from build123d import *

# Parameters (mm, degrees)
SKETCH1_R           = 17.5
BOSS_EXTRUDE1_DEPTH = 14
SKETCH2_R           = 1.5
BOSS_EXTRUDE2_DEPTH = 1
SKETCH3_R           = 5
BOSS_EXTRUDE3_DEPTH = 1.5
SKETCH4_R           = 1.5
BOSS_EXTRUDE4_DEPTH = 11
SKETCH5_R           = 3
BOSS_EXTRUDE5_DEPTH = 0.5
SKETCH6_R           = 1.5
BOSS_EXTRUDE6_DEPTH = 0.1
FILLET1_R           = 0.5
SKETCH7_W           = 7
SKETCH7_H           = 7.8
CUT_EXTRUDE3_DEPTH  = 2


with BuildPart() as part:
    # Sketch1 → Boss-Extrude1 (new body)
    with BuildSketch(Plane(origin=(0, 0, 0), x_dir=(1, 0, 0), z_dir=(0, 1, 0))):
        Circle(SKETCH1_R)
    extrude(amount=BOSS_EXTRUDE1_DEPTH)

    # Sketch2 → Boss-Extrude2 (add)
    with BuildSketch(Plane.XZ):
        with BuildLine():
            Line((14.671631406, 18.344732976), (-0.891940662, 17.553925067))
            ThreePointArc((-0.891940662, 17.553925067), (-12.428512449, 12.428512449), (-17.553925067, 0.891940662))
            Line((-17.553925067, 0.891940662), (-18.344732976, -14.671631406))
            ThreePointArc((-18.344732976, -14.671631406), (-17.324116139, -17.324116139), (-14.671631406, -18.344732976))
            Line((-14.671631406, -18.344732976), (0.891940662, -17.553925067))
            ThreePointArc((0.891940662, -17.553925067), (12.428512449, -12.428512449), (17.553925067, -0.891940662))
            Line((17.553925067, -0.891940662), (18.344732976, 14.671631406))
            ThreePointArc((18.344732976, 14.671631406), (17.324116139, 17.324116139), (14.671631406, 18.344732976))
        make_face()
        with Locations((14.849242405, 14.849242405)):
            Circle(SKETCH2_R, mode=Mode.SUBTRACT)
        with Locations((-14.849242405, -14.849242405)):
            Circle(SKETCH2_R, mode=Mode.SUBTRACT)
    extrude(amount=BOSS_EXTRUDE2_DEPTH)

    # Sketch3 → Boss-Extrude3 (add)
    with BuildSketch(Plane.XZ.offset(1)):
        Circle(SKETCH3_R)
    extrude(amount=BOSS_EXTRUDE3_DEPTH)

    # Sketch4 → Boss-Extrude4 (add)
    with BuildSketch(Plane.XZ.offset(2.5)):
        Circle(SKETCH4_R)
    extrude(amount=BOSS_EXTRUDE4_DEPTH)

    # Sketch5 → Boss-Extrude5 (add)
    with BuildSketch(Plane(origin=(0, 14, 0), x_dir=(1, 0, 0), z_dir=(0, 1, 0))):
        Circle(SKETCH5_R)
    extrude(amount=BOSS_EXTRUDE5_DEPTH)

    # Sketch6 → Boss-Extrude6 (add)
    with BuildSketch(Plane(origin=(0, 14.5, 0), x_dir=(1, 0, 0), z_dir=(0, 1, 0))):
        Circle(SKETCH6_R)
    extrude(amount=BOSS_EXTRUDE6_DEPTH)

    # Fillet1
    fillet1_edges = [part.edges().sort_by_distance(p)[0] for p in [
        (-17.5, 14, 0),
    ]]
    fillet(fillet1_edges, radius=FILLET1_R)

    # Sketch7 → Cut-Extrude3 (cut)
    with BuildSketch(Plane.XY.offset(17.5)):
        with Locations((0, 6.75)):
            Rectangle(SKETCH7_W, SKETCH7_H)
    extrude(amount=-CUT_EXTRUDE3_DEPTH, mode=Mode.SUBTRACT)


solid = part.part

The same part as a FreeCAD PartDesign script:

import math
import FreeCAD as App
import Part
import Sketcher
Q = App.Units.Quantity


def edges_at(feature, points):
    """Names of the edges that pass closest to the given points."""
    edges = feature.Shape.Edges
    near = lambda p: min(range(len(edges)), key=lambda i: edges[i].distToShape(Part.Vertex(*p))[0])
    return sorted({f"Edge{near(p) + 1}" for p in points})


def add_polygon(sketch, points):
    """Adds a closed chain of lines whose ends are joined by coincident constraints."""
    first, n = sketch.GeometryCount, len(points)
    for a, b in zip(points, points[1:] + points[:1]):
        sketch.addGeometry(Part.LineSegment(App.Vector(*a, 0), App.Vector(*b, 0)), False)
    for i in range(n):
        sketch.addConstraint(Sketcher.Constraint("Coincident", first + i, 2, first + (i + 1) % n, 1))

doc = App.newDocument("Part")
body = doc.addObject("PartDesign::Body", "Body")

sketch1 = body.newObject("Sketcher::SketchObject", "Sketch")
sketch1.AttachmentSupport = (doc.getObject("XZ_Plane"), [""])
sketch1.MapMode = "FlatFace"
sketch1.addGeometry(Part.Circle(App.Vector(0, 0, 0), App.Vector(0, 0, 1), 18), False)
sketch1.addConstraint(Sketcher.Constraint("Coincident", 0, 3, -1, 1))
sketch1.addConstraint(Sketcher.Constraint("Diameter", 0, Q("35 mm")))
pad1 = body.newObject("PartDesign::Pad", "Pad")
pad1.Profile = sketch1
pad1.Length = 14
pad1.Reversed = True

sketch2 = body.newObject("Sketcher::SketchObject", "Sketch001")
sketch2.AttachmentSupport = (doc.getObject("XZ_Plane"), [""])
sketch2.MapMode = "FlatFace"
sketch2.addGeometry(Part.LineSegment(App.Vector(14.7, 18.3, 0), App.Vector(-0.9, 17.6, 0)), False)
sketch2.addGeometry(Part.ArcOfCircle(Part.Circle(App.Vector(0, 0, 0), App.Vector(0, 0, 1), 17.6), math.radians(93), math.radians(177)), False)
sketch2.addGeometry(Part.LineSegment(App.Vector(-17.6, 0.9, 0), App.Vector(-18.3, -14.7, 0)), False)
sketch2.addGeometry(Part.ArcOfCircle(Part.Circle(App.Vector(-14.8, -14.8, 0), App.Vector(0, 0, 1), 3.5), math.radians(177), math.radians(273)), False)
sketch2.addGeometry(Part.LineSegment(App.Vector(-14.7, -18.3, 0), App.Vector(0.9, -17.6, 0)), False)
sketch2.addGeometry(Part.ArcOfCircle(Part.Circle(App.Vector(0, 0, 0), App.Vector(0, 0, 1), 17.6), math.radians(-87), math.radians(-3)), False)
sketch2.addGeometry(Part.LineSegment(App.Vector(17.6, -0.9, 0), App.Vector(18.3, 14.7, 0)), False)
sketch2.addGeometry(Part.ArcOfCircle(Part.Circle(App.Vector(14.8, 14.8, 0), App.Vector(0, 0, 1), 3.5), math.radians(-3), math.radians(93)), False)
sketch2.addGeometry(Part.Circle(App.Vector(-14.8, -14.8, 0), App.Vector(0, 0, 1), 1.5), False)
sketch2.addGeometry(Part.Circle(App.Vector(14.8, 14.8, 0), App.Vector(0, 0, 1), 1.5), False)
sketch2.addConstraint(Sketcher.Constraint("Tangent", 0, 2, 1, 1))
sketch2.addConstraint(Sketcher.Constraint("Tangent", 1, 2, 2, 1))
sketch2.addConstraint(Sketcher.Constraint("Tangent", 2, 2, 3, 1))
sketch2.addConstraint(Sketcher.Constraint("Tangent", 3, 2, 4, 1))
sketch2.addConstraint(Sketcher.Constraint("Tangent", 4, 2, 5, 1))
sketch2.addConstraint(Sketcher.Constraint("Tangent", 5, 2, 6, 1))
sketch2.addConstraint(Sketcher.Constraint("Tangent", 6, 2, 7, 1))
sketch2.addConstraint(Sketcher.Constraint("Tangent", 7, 2, 0, 1))
sketch2.addConstraint(Sketcher.Constraint("Coincident", 1, 3, -1, 1))
sketch2.addConstraint(Sketcher.Constraint("Coincident", 5, 3, -1, 1))
sketch2.addConstraint(Sketcher.Constraint("Coincident", 8, 3, 3, 3))
sketch2.addConstraint(Sketcher.Constraint("Coincident", 9, 3, 7, 3))
sketch2.addConstraint(Sketcher.Constraint("Equal", 1, 5))
sketch2.addConstraint(Sketcher.Constraint("Equal", 3, 7))
sketch2.addConstraint(Sketcher.Constraint("Equal", 8, 9))
sketch2.addConstraint(Sketcher.Constraint("Symmetric", 3, 3, 7, 3, -1, 1))
sketch2.addConstraint(Sketcher.Constraint("Diameter", 8, Q("3 mm")))
sketch2.addConstraint(Sketcher.Constraint("Radius", 3, Q("3.5 mm")))
sketch2.addConstraint(Sketcher.Constraint("Radius", 1, Q("17.576571 mm")))
sketch2.addConstraint(Sketcher.Constraint("DistanceX", 3, 3, 0, 2, Q("13.957302 mm")))
sketch2.addConstraint(Sketcher.Constraint("DistanceX", 2, 2, 3, 2, Q("3.673102 mm")))
pad2 = body.newObject("PartDesign::Pad", "Pad001")
pad2.Profile = sketch2
pad2.Length = 1

sketch3 = body.newObject("Sketcher::SketchObject", "Sketch002")
sketch3.AttachmentSupport = (doc.getObject("XZ_Plane"), [""])
sketch3.MapMode = "FlatFace"
sketch3.AttachmentOffset = App.Placement(App.Vector(0, 0, 1), App.Rotation())
sketch3.addGeometry(Part.Circle(App.Vector(0, 0, 0), App.Vector(0, 0, 1), 5), False)
sketch3.addConstraint(Sketcher.Constraint("Coincident", 0, 3, -1, 1))
sketch3.addConstraint(Sketcher.Constraint("Diameter", 0, Q("10 mm")))
pad3 = body.newObject("PartDesign::Pad", "Pad002")
pad3.Profile = sketch3
pad3.Length = 1.5

sketch4 = body.newObject("Sketcher::SketchObject", "Sketch003")
sketch4.AttachmentSupport = (doc.getObject("XZ_Plane"), [""])
sketch4.MapMode = "FlatFace"
sketch4.AttachmentOffset = App.Placement(App.Vector(0, 0, 2.5), App.Rotation())
sketch4.addGeometry(Part.Circle(App.Vector(0, 0, 0), App.Vector(0, 0, 1), 1.5), False)
sketch4.addConstraint(Sketcher.Constraint("Coincident", 0, 3, -1, 1))
sketch4.addConstraint(Sketcher.Constraint("Diameter", 0, Q("3 mm")))
pad4 = body.newObject("PartDesign::Pad", "Pad003")
pad4.Profile = sketch4
pad4.Length = 11

sketch5 = body.newObject("Sketcher::SketchObject", "Sketch004")
sketch5.AttachmentSupport = (doc.getObject("XZ_Plane"), [""])
sketch5.MapMode = "FlatFace"
sketch5.AttachmentOffset = App.Placement(App.Vector(0, 0, -14), App.Rotation())
sketch5.addGeometry(Part.Circle(App.Vector(0, 0, 0), App.Vector(0, 0, 1), 3), False)
sketch5.addConstraint(Sketcher.Constraint("Coincident", 0, 3, -1, 1))
sketch5.addConstraint(Sketcher.Constraint("Diameter", 0, Q("6 mm")))
pad5 = body.newObject("PartDesign::Pad", "Pad004")
pad5.Profile = sketch5
pad5.Length = 0.5
pad5.Reversed = True

sketch6 = body.newObject("Sketcher::SketchObject", "Sketch005")
sketch6.AttachmentSupport = (doc.getObject("XZ_Plane"), [""])
sketch6.MapMode = "FlatFace"
sketch6.AttachmentOffset = App.Placement(App.Vector(0, 0, -14.5), App.Rotation())
sketch6.addGeometry(Part.Circle(App.Vector(0, 0, 0), App.Vector(0, 0, 1), 1.5), False)
sketch6.addConstraint(Sketcher.Constraint("Coincident", 0, 3, -1, 1))
sketch6.addConstraint(Sketcher.Constraint("Diameter", 0, Q("3 mm")))
pad6 = body.newObject("PartDesign::Pad", "Pad005")
pad6.Profile = sketch6
pad6.Length = 0.1
pad6.Reversed = True
doc.recompute()

fillet = body.newObject("PartDesign::Fillet", "Fillet")
fillet.Base = (pad6, edges_at(pad6, [(-17.5, 14, 0)]))
fillet.Radius = 0.5

sketch7 = body.newObject("Sketcher::SketchObject", "Sketch006")
sketch7.AttachmentSupport = (doc.getObject("XY_Plane"), [""])
sketch7.MapMode = "FlatFace"
sketch7.AttachmentOffset = App.Placement(App.Vector(0, 0, 17.5), App.Rotation())
add_polygon(sketch7, [(-4, 11), (-4, 3), (4, 3), (4, 11)])
sketch7.addConstraint(Sketcher.Constraint("Vertical", 0))
sketch7.addConstraint(Sketcher.Constraint("Horizontal", 1))
sketch7.addConstraint(Sketcher.Constraint("Vertical", 2))
sketch7.addConstraint(Sketcher.Constraint("Horizontal", 3))
sketch7.addConstraint(Sketcher.Constraint("DistanceX", 1, 1, 1, 2, Q("7 mm")))
sketch7.addConstraint(Sketcher.Constraint("DistanceY", 0, 2, 0, 1, Q("7.8 mm")))
sketch7.addConstraint(Sketcher.Constraint("DistanceX", 0, 2, -1, 1, Q("3.5 mm")))
sketch7.addConstraint(Sketcher.Constraint("DistanceY", -1, 1, 0, 2, Q("2.85 mm")))
pocket1 = body.newObject("PartDesign::Pocket", "Pocket")
pocket1.Profile = sketch7
pocket1.Length = 2

doc.recompute()
